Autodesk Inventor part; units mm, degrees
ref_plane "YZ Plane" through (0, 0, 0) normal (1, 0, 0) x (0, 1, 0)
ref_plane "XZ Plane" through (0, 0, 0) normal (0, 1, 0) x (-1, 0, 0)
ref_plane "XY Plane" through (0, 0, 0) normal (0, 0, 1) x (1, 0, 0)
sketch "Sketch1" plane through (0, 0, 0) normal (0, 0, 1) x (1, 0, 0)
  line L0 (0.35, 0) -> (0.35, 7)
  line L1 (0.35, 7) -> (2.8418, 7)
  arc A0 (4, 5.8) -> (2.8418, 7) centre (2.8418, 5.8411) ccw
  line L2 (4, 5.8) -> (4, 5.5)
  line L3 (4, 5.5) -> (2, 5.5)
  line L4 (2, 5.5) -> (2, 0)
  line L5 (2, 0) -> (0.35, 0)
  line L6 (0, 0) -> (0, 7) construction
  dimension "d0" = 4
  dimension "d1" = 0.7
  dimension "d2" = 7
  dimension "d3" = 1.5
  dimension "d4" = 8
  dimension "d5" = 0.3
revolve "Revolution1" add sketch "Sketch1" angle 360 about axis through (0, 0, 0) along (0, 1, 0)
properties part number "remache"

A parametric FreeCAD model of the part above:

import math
import FreeCAD as App
import Part
import Sketcher

V = App.Vector
Q = App.Units.Quantity

doc = App.newDocument("Part")
params = doc.addObject("Spreadsheet::Sheet", "Params")
for row, (alias, value) in enumerate([
    ("sketch1_height", "7 mm"),
    ("sketch1_height2", "0.3 mm"),
    ("sketch1_width", "2 mm"),
    ("sketch1_width2", "1.65 mm"),
    ("revolution_angle", "360 deg"),
], start=1):
    params.set(f"A{row}", alias)
    params.set(f"B{row}", "=" + value)
    params.setAlias(f"B{row}", alias)

body = doc.addObject("PartDesign::Body", "Body")

# Sketch on XY plane
sketch1 = doc.addObject("Sketcher::SketchObject", "Sketch")
body.addObject(sketch1)
sketch1.AttachmentSupport = (doc.XY_Plane, [""])
sketch1.MapMode = "FlatFace"
sketch1.addGeometry(Part.LineSegment(V(0.35, 7, 0), V(0.35, 0, 0)), False)
sketch1.addGeometry(Part.LineSegment(V(0.35, 0, 0), V(2, 0, 0)), False)
sketch1.addGeometry(Part.LineSegment(V(2, 0, 0), V(2, 5.5, 0)), False)
sketch1.addGeometry(Part.LineSegment(V(2, 5.5, 0), V(4, 5.5, 0)), False)
sketch1.addGeometry(Part.LineSegment(V(4, 5.5, 0), V(4, 5.8, 0)), False)
sketch1.addGeometry(Part.ArcOfCircle(Part.Circle(V(2.84, 5.84, 0), V(0, 0, 1), 1.16), math.radians(-2), math.radians(90)), False)
sketch1.addGeometry(Part.LineSegment(V(2.84, 7, 0), V(0.35, 7, 0)), False)
sketch1.addConstraint(Sketcher.Constraint("Coincident", 0, 2, 1, 1))
sketch1.addConstraint(Sketcher.Constraint("Coincident", 1, 2, 2, 1))
sketch1.addConstraint(Sketcher.Constraint("Coincident", 2, 2, 3, 1))
sketch1.addConstraint(Sketcher.Constraint("Coincident", 3, 2, 4, 1))
sketch1.addConstraint(Sketcher.Constraint("Coincident", 4, 2, 5, 1))
sketch1.addConstraint(Sketcher.Constraint("Tangent", 5, 2, 6, 1))
sketch1.addConstraint(Sketcher.Constraint("Coincident", 6, 2, 0, 1))
sketch1.addConstraint(Sketcher.Constraint("Vertical", 0))
sketch1.addConstraint(Sketcher.Constraint("Horizontal", 1))
sketch1.addConstraint(Sketcher.Constraint("Vertical", 2))
sketch1.addConstraint(Sketcher.Constraint("Horizontal", 3))
sketch1.addConstraint(Sketcher.Constraint("Vertical", 4))
sketch1.addConstraint(Sketcher.Constraint("Horizontal", 6))
sketch1.addConstraint(Sketcher.Constraint("PointOnObject", 0, 2, -1))
sketch1.addConstraint(Sketcher.Constraint("DistanceY", 0, 2, 0, 1, Q("7 mm")))
sketch1.addConstraint(Sketcher.Constraint("DistanceY", 4, 1, 4, 2, Q("0.3 mm")))
sketch1.addConstraint(Sketcher.Constraint("DistanceX", -1, 1, 3, 2, Q("4 mm")))
sketch1.addConstraint(Sketcher.Constraint("DistanceY", 2, 2, 5, 2, Q("1.5 mm")))
sketch1.addConstraint(Sketcher.Constraint("DistanceX", 3, 1, 3, 2, Q("2 mm")))
sketch1.addConstraint(Sketcher.Constraint("Radius", 5, Q("1.159 mm")))
sketch1.addConstraint(Sketcher.Constraint("DistanceX", 1, 1, 1, 2, Q("1.65 mm")))
sketch1.setExpression("Constraints[14]", "Params.sketch1_height")
sketch1.setExpression("Constraints[15]", "Params.sketch1_height2")
sketch1.setExpression("Constraints[18]", "Params.sketch1_width")
sketch1.setExpression("Constraints[20]", "Params.sketch1_width2")
revolution = doc.addObject("PartDesign::Revolution", "Revolution")
body.addObject(revolution)
revolution.Profile = sketch1
revolution.ReferenceAxis = (sketch1, ["V_Axis"])
revolution.setExpression("Angle", "Params.revolution_angle")

doc.recompute()
